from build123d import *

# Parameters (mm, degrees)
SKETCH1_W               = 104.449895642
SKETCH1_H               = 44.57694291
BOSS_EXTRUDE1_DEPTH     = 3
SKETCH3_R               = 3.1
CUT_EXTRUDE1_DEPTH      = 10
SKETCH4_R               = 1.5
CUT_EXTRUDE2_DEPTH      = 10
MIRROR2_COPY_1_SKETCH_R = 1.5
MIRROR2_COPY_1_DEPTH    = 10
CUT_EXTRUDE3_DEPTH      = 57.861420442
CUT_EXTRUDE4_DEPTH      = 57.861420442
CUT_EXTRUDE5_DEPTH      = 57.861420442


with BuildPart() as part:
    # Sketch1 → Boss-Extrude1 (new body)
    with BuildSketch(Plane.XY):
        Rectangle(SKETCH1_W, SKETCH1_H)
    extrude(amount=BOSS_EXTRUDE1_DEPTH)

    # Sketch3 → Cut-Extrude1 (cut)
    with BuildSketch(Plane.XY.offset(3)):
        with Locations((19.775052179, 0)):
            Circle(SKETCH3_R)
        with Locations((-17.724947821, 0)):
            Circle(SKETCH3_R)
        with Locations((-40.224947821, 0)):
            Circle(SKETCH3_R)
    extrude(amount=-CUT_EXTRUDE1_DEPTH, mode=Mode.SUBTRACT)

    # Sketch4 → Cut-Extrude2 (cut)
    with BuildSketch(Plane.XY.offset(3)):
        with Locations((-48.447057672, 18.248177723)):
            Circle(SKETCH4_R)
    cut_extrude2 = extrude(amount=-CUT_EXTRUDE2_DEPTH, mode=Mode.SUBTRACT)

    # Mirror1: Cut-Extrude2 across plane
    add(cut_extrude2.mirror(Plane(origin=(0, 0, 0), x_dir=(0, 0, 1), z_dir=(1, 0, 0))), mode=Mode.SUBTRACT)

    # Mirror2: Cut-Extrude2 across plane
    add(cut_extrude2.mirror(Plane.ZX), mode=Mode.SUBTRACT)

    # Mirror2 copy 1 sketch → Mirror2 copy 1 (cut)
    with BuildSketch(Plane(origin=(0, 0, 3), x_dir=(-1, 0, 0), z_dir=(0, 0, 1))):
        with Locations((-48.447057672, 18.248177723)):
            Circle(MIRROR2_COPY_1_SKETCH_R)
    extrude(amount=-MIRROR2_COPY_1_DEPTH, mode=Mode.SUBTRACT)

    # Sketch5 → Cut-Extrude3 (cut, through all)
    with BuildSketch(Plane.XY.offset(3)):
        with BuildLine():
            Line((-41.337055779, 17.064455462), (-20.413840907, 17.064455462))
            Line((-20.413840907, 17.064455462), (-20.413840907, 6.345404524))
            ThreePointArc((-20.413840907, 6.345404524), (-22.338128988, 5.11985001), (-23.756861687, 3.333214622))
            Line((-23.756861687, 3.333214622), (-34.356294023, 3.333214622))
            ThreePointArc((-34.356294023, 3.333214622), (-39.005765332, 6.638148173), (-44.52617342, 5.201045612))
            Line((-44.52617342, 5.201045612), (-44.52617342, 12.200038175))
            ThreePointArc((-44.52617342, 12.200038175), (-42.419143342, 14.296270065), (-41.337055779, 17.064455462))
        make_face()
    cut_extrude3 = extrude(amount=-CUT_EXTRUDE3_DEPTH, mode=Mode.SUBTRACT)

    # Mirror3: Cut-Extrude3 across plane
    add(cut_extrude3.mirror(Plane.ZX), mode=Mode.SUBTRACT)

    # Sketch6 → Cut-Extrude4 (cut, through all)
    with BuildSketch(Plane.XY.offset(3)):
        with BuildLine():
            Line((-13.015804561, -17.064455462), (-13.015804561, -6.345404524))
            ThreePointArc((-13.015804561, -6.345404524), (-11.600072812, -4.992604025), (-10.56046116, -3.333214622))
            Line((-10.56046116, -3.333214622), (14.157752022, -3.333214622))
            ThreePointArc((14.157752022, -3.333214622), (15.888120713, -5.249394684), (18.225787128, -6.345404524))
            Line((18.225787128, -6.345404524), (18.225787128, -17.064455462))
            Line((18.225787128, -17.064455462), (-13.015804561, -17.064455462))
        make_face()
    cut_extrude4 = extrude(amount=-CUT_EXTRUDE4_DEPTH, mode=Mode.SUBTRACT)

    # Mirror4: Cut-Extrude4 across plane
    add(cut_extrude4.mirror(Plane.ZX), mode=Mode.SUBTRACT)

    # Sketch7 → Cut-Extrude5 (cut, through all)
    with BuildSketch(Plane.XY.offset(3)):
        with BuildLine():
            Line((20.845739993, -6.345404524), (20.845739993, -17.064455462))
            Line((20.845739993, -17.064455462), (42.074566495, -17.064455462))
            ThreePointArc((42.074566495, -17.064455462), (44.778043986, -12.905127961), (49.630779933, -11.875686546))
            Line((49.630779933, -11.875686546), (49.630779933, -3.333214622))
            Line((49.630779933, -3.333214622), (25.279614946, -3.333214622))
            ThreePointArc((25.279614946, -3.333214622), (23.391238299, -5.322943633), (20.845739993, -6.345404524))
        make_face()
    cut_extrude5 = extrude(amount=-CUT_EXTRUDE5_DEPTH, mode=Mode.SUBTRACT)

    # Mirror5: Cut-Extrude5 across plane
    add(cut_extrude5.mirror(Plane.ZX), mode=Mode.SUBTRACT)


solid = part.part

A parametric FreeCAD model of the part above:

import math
import FreeCAD as App
import Part
import Sketcher

V = App.Vector

doc = App.newDocument("Part")
body = doc.addObject("PartDesign::Body", "Body")

# Sketch on XY plane
sketch1 = body.newObject("Sketcher::SketchObject", "Sketch")
sketch1.AttachmentSupport = (doc.getObject("XY_Plane"), [""])
sketch1.MapMode = "FlatFace"
sketch1.addGeometry([
    Part.LineSegment(V(-52, 22, 0), V(-52, -22, 0)),
    Part.LineSegment(V(-52, -22, 0), V(52, -22, 0)),
    Part.LineSegment(V(52, -22, 0), V(52, 22, 0)),
    Part.LineSegment(V(52, 22, 0), V(-52, 22, 0)),
], False)
sketch1.addConstraint([
    Sketcher.Constraint("Coincident", 0, 2, 1, 1),
    Sketcher.Constraint("Coincident", 1, 2, 2, 1),
    Sketcher.Constraint("Coincident", 2, 2, 3, 1),
    Sketcher.Constraint("Coincident", 3, 2, 0, 1),
    Sketcher.Constraint("Vertical", 0),
    Sketcher.Constraint("Horizontal", 1),
    Sketcher.Constraint("Vertical", 2),
    Sketcher.Constraint("Horizontal", 3),
    Sketcher.Constraint("Symmetric", 0, 2, 2, 2, -1, 1),
    Sketcher.Constraint("DistanceX", 1, 1, 1, 2, 104.449896),
    Sketcher.Constraint("DistanceY", 0, 2, 0, 1, 44.576943),
])
pad1 = body.newObject("PartDesign::Pad", "Pad")
pad1.Profile = sketch1
pad1.Length = 3

# Sketch on XY plane
sketch2 = body.newObject("Sketcher::SketchObject", "Sketch001")
sketch2.AttachmentSupport = (doc.getObject("XY_Plane"), [""])
sketch2.MapMode = "FlatFace"
sketch2.AttachmentOffset = App.Placement(V(0, 0, 3), App.Rotation())
sketch2.addGeometry([
    Part.Circle(V(19.8, 0, 0), V(0, 0, 1), 3.1),
    Part.Circle(V(-17.7, 0, 0), V(0, 0, 1), 3.1),
    Part.Circle(V(-40.2, 0, 0), V(0, 0, 1), 3.1),
], False)
sketch2.addConstraint([
    Sketcher.Constraint("Equal", 0, 1),
    Sketcher.Constraint("Equal", 1, 2),
    Sketcher.Constraint("PointOnObject", 0, 3, -1),
    Sketcher.Constraint("PointOnObject", 1, 3, -1),
    Sketcher.Constraint("PointOnObject", 2, 3, -1),
    Sketcher.Constraint("Diameter", 0, 6.2),
    Sketcher.Constraint("DistanceX", 2, 3, 0, 3, 60.0),
    Sketcher.Constraint("DistanceX", 1, 3, 0, 3, 37.5),
    Sketcher.Constraint("DistanceX", -1, 1, 0, 3, 19.775052),
])
pocket1 = body.newObject("PartDesign::Pocket", "Pocket")
pocket1.Profile = sketch2
pocket1.Length = 10

# Sketch on XY plane
sketch3 = body.newObject("Sketcher::SketchObject", "Sketch002")
sketch3.AttachmentSupport = (doc.getObject("XY_Plane"), [""])
sketch3.MapMode = "FlatFace"
sketch3.AttachmentOffset = App.Placement(V(0, 0, 3), App.Rotation())
sketch3.addGeometry(Part.Circle(V(-48.4, 18.2, 0), V(0, 0, 1), 1.5), False)
sketch3.addConstraint([
    Sketcher.Constraint("Diameter", 0, 3.0),
    Sketcher.Constraint("DistanceX", 0, 3, -1, 1, 48.447058),
    Sketcher.Constraint("DistanceY", -1, 1, 0, 3, 18.248178),
])
pocket2 = body.newObject("PartDesign::Pocket", "Pocket001")
pocket2.Profile = sketch3
pocket2.Length = 10
doc.recompute()

mirrored = body.newObject("PartDesign::Mirrored", "Mirrored")
mirrored.Originals = [pocket2]
mirrored.MirrorPlane = (doc.getObject("YZ_Plane"), [""])
body.Tip = mirrored
doc.recompute()

mirrored2 = body.newObject("PartDesign::Mirrored", "Mirrored001")
mirrored2.Originals = [pocket2]
mirrored2.MirrorPlane = (doc.getObject("XZ_Plane"), [""])
body.Tip = mirrored2

# Sketch on XY plane
sketch4 = body.newObject("Sketcher::SketchObject", "Sketch003")
sketch4.AttachmentSupport = (doc.getObject("XY_Plane"), [""])
sketch4.MapMode = "FlatFace"
sketch4.AttachmentOffset = App.Placement(V(0, 0, 3), App.Rotation())
sketch4.addGeometry(Part.Circle(V(48.4, -18.2, 0), V(0, 0, 1), 1.5), False)
sketch4.addConstraint([
    Sketcher.Constraint("Diameter", 0, 3.0),
    Sketcher.Constraint("DistanceX", -1, 1, 0, 3, 48.447058),
    Sketcher.Constraint("DistanceY", 0, 3, -1, 1, 18.248178),
])
pocket3 = body.newObject("PartDesign::Pocket", "Pocket002")
pocket3.Profile = sketch4
pocket3.Length = 10

# Sketch on XY plane
sketch5 = body.newObject("Sketcher::SketchObject", "Sketch004")
sketch5.AttachmentSupport = (doc.getObject("XY_Plane"), [""])
sketch5.MapMode = "FlatFace"
sketch5.AttachmentOffset = App.Placement(V(0, 0, 3), App.Rotation())
sketch5.addGeometry([
    Part.LineSegment(V(-20.4, 17.1, 0), V(-41.3, 17.1, 0)),  # 0
    Part.ArcOfCircle(Part.Circle(V(-48.4, 18.2, 0), V(0, 0, 1), 7.2), math.radians(-57), math.radians(-9)),  # 1
    Part.LineSegment(V(-44.5, 12.2, 0), V(-44.5, 5.2, 0)),  # 2
    Part.ArcOfCircle(Part.Circle(V(-40.2, 0, 0), V(0, 0, 1), 6.7), math.radians(30), math.radians(130)),  # 3
    Part.LineSegment(V(-34.4, 3.3, 0), V(-23.8, 3.3, 0)),  # 4
    Part.ArcOfCircle(Part.Circle(V(-17.7, 0, 0), V(0, 0, 1), 6.9), math.radians(113), math.radians(151)),  # 5
    Part.LineSegment(V(-20.4, 6.3, 0), V(-20.4, 17.1, 0)),  # 6
], False)
sketch5.addConstraint([
    Sketcher.Constraint("Coincident", 0, 2, 1, 2),
    Sketcher.Constraint("Coincident", 1, 1, 2, 1),
    Sketcher.Constraint("Coincident", 2, 2, 3, 2),
    Sketcher.Constraint("Coincident", 3, 1, 4, 1),
    Sketcher.Constraint("Coincident", 4, 2, 5, 2),
    Sketcher.Constraint("Coincident", 5, 1, 6, 1),
    Sketcher.Constraint("Coincident", 6, 2, 0, 1),
    Sketcher.Constraint("Horizontal", 0),
    Sketcher.Constraint("Vertical", 2),
    Sketcher.Constraint("Horizontal", 4),
    Sketcher.Constraint("Vertical", 6),
    Sketcher.Constraint("PointOnObject", 3, 3, -1),
    Sketcher.Constraint("PointOnObject", 5, 3, -1),
    Sketcher.Constraint("DistanceX", 3, 3, 5, 3, 22.5),
    Sketcher.Constraint("Radius", 3, 6.749179),
    Sketcher.Constraint("Radius", 5, 6.891611),
    Sketcher.Constraint("DistanceX", 1, 3, 0, 2, 7.110002),
    Sketcher.Constraint("Radius", 1, 7.207866),
    Sketcher.Constraint("DistanceY", 6, 1, 6, 2, 10.719051),
    Sketcher.Constraint("DistanceX", 0, 2, 0, 1, 20.923215),
    Sketcher.Constraint("DistanceX", 4, 1, 4, 2, 10.599432),
    Sketcher.Constraint("DistanceY", 2, 2, 2, 1, 6.998993),
    Sketcher.Constraint("DistanceY", -1, 1, 1, 1, 12.200038),
    Sketcher.Constraint("DistanceX", 4, 2, -1, 1, 23.756862),
])
pocket4 = body.newObject("PartDesign::Pocket", "Pocket003")
pocket4.Profile = sketch5
pocket4.Type = "ThroughAll"
doc.recompute()

mirrored3 = body.newObject("PartDesign::Mirrored", "Mirrored002")
mirrored3.Originals = [pocket4]
mirrored3.MirrorPlane = (doc.getObject("XZ_Plane"), [""])
body.Tip = mirrored3

# Sketch on XY plane
sketch6 = body.newObject("Sketcher::SketchObject", "Sketch005")
sketch6.AttachmentSupport = (doc.getObject("XY_Plane"), [""])
sketch6.MapMode = "FlatFace"
sketch6.AttachmentOffset = App.Placement(V(0, 0, 3), App.Rotation())
sketch6.addGeometry([
    Part.LineSegment(V(-13, -6.3, 0), V(-13, -17.1, 0)),  # 0
    Part.LineSegment(V(-13, -17.1, 0), V(18.2, -17.1, 0)),  # 1
    Part.LineSegment(V(18.2, -17.1, 0), V(18.2, -6.3, 0)),  # 2
    Part.ArcOfCircle(Part.Circle(V(19.8, 0, 0), V(0, 0, 1), 6.5), math.radians(-149), math.radians(-104)),  # 3
    Part.LineSegment(V(14.2, -3.3, 0), V(-10.6, -3.3, 0)),  # 4
    Part.ArcOfCircle(Part.Circle(V(-17.7, 0, 0), V(0, 0, 1), 7.9), math.radians(-53), math.radians(-25)),  # 5
], False)
sketch6.addConstraint([
    Sketcher.Constraint("Coincident", 0, 2, 1, 1),
    Sketcher.Constraint("Coincident", 1, 2, 2, 1),
    Sketcher.Constraint("Coincident", 2, 2, 3, 2),
    Sketcher.Constraint("Coincident", 3, 1, 4, 1),
    Sketcher.Constraint("Coincident", 4, 2, 5, 2),
    Sketcher.Constraint("Coincident", 5, 1, 0, 1),
    Sketcher.Constraint("Vertical", 0),
    Sketcher.Constraint("Horizontal", 1),
    Sketcher.Constraint("Vertical", 2),
    Sketcher.Constraint("Horizontal", 4),
    Sketcher.Constraint("PointOnObject", 3, 3, -1),
    Sketcher.Constraint("PointOnObject", 5, 3, -1),
    Sketcher.Constraint("Horizontal", 2, 2, 5, 1),
    Sketcher.Constraint("DistanceX", 5, 3, 3, 3, 37.5),
    Sketcher.Constraint("Radius", 5, 7.90191),
    Sketcher.Constraint("Radius", 3, 6.531798),
    Sketcher.Constraint("DistanceX", 1, 1, 1, 2, 31.241592),
    Sketcher.Constraint("DistanceY", 0, 2, 0, 1, 10.719051),
    Sketcher.Constraint("DistanceX", 3, 1, 3, 3, 5.6173),
    Sketcher.Constraint("DistanceX", 4, 2, -1, 1, 10.560461),
])
pocket5 = body.newObject("PartDesign::Pocket", "Pocket004")
pocket5.Profile = sketch6
pocket5.Type = "ThroughAll"
doc.recompute()

mirrored4 = body.newObject("PartDesign::Mirrored", "Mirrored003")
mirrored4.Originals = [pocket5]
mirrored4.MirrorPlane = (doc.getObject("XZ_Plane"), [""])
body.Tip = mirrored4

# Sketch on XY plane
sketch7 = body.newObject("Sketcher::SketchObject", "Sketch006")
sketch7.AttachmentSupport = (doc.getObject("XY_Plane"), [""])
sketch7.MapMode = "FlatFace"
sketch7.AttachmentOffset = App.Placement(V(0, 0, 3), App.Rotation())
sketch7.addGeometry([
    Part.LineSegment(V(21, -6, 0), V(21, -17, 0)),  # 0
    Part.LineSegment(V(21, -17, 0), V(42, -17, 0)),  # 1
    Part.ArcOfCircle(Part.Circle(V(48, -18, 0), V(0, 0, 1), 6), math.radians(79), math.radians(169)),  # 2
    Part.LineSegment(V(50, -12, 0), V(50, -3, 0)),  # 3
    Part.LineSegment(V(50, -3, 0), V(25, -3, 0)),  # 4
    Part.ArcOfCircle(Part.Circle(V(20, 0, 0), V(0, 0, 1), 6), math.radians(-80), math.radians(-31)),  # 5
], False)
sketch7.addConstraint([
    Sketcher.Constraint("Coincident", 0, 2, 1, 1),
    Sketcher.Constraint("Coincident", 1, 2, 2, 2),
    Sketcher.Constraint("Coincident", 2, 1, 3, 1),
    Sketcher.Constraint("Coincident", 3, 2, 4, 1),
    Sketcher.Constraint("Coincident", 4, 2, 5, 2),
    Sketcher.Constraint("Coincident", 5, 1, 0, 1),
    Sketcher.Constraint("Vertical", 0),
    Sketcher.Constraint("Horizontal", 1),
    Sketcher.Constraint("Vertical", 3),
    Sketcher.Constraint("Horizontal", 4),
    Sketcher.Constraint("PointOnObject", 5, 3, -1),
    Sketcher.Constraint("Radius", 2, 6.4815),
    Sketcher.Constraint("Radius", 5, 6.435101),
    Sketcher.Constraint("DistanceY", 0, 2, 0, 1, 10.719051),
    Sketcher.Constraint("DistanceY", 3, 1, 3, 2, 8.542472),
    Sketcher.Constraint("DistanceX", 1, 1, 1, 2, 21.228827),
    Sketcher.Constraint("DistanceX", 4, 2, 4, 1, 24.351165),
    Sketcher.Constraint("DistanceX", -1, 1, 0, 2, 20.84574),
    Sketcher.Constraint("DistanceX", -1, 1, 2, 1, 49.63078),
    Sketcher.Constraint("DistanceX", 1, 2, 2, 3, 6.372491),
])
pocket6 = body.newObject("PartDesign::Pocket", "Pocket005")
pocket6.Profile = sketch7
pocket6.Type = "ThroughAll"
doc.recompute()

mirrored5 = body.newObject("PartDesign::Mirrored", "Mirrored004")
mirrored5.Originals = [pocket6]
mirrored5.MirrorPlane = (doc.getObject("XZ_Plane"), [""])
body.Tip = mirrored5

doc.recompute()
